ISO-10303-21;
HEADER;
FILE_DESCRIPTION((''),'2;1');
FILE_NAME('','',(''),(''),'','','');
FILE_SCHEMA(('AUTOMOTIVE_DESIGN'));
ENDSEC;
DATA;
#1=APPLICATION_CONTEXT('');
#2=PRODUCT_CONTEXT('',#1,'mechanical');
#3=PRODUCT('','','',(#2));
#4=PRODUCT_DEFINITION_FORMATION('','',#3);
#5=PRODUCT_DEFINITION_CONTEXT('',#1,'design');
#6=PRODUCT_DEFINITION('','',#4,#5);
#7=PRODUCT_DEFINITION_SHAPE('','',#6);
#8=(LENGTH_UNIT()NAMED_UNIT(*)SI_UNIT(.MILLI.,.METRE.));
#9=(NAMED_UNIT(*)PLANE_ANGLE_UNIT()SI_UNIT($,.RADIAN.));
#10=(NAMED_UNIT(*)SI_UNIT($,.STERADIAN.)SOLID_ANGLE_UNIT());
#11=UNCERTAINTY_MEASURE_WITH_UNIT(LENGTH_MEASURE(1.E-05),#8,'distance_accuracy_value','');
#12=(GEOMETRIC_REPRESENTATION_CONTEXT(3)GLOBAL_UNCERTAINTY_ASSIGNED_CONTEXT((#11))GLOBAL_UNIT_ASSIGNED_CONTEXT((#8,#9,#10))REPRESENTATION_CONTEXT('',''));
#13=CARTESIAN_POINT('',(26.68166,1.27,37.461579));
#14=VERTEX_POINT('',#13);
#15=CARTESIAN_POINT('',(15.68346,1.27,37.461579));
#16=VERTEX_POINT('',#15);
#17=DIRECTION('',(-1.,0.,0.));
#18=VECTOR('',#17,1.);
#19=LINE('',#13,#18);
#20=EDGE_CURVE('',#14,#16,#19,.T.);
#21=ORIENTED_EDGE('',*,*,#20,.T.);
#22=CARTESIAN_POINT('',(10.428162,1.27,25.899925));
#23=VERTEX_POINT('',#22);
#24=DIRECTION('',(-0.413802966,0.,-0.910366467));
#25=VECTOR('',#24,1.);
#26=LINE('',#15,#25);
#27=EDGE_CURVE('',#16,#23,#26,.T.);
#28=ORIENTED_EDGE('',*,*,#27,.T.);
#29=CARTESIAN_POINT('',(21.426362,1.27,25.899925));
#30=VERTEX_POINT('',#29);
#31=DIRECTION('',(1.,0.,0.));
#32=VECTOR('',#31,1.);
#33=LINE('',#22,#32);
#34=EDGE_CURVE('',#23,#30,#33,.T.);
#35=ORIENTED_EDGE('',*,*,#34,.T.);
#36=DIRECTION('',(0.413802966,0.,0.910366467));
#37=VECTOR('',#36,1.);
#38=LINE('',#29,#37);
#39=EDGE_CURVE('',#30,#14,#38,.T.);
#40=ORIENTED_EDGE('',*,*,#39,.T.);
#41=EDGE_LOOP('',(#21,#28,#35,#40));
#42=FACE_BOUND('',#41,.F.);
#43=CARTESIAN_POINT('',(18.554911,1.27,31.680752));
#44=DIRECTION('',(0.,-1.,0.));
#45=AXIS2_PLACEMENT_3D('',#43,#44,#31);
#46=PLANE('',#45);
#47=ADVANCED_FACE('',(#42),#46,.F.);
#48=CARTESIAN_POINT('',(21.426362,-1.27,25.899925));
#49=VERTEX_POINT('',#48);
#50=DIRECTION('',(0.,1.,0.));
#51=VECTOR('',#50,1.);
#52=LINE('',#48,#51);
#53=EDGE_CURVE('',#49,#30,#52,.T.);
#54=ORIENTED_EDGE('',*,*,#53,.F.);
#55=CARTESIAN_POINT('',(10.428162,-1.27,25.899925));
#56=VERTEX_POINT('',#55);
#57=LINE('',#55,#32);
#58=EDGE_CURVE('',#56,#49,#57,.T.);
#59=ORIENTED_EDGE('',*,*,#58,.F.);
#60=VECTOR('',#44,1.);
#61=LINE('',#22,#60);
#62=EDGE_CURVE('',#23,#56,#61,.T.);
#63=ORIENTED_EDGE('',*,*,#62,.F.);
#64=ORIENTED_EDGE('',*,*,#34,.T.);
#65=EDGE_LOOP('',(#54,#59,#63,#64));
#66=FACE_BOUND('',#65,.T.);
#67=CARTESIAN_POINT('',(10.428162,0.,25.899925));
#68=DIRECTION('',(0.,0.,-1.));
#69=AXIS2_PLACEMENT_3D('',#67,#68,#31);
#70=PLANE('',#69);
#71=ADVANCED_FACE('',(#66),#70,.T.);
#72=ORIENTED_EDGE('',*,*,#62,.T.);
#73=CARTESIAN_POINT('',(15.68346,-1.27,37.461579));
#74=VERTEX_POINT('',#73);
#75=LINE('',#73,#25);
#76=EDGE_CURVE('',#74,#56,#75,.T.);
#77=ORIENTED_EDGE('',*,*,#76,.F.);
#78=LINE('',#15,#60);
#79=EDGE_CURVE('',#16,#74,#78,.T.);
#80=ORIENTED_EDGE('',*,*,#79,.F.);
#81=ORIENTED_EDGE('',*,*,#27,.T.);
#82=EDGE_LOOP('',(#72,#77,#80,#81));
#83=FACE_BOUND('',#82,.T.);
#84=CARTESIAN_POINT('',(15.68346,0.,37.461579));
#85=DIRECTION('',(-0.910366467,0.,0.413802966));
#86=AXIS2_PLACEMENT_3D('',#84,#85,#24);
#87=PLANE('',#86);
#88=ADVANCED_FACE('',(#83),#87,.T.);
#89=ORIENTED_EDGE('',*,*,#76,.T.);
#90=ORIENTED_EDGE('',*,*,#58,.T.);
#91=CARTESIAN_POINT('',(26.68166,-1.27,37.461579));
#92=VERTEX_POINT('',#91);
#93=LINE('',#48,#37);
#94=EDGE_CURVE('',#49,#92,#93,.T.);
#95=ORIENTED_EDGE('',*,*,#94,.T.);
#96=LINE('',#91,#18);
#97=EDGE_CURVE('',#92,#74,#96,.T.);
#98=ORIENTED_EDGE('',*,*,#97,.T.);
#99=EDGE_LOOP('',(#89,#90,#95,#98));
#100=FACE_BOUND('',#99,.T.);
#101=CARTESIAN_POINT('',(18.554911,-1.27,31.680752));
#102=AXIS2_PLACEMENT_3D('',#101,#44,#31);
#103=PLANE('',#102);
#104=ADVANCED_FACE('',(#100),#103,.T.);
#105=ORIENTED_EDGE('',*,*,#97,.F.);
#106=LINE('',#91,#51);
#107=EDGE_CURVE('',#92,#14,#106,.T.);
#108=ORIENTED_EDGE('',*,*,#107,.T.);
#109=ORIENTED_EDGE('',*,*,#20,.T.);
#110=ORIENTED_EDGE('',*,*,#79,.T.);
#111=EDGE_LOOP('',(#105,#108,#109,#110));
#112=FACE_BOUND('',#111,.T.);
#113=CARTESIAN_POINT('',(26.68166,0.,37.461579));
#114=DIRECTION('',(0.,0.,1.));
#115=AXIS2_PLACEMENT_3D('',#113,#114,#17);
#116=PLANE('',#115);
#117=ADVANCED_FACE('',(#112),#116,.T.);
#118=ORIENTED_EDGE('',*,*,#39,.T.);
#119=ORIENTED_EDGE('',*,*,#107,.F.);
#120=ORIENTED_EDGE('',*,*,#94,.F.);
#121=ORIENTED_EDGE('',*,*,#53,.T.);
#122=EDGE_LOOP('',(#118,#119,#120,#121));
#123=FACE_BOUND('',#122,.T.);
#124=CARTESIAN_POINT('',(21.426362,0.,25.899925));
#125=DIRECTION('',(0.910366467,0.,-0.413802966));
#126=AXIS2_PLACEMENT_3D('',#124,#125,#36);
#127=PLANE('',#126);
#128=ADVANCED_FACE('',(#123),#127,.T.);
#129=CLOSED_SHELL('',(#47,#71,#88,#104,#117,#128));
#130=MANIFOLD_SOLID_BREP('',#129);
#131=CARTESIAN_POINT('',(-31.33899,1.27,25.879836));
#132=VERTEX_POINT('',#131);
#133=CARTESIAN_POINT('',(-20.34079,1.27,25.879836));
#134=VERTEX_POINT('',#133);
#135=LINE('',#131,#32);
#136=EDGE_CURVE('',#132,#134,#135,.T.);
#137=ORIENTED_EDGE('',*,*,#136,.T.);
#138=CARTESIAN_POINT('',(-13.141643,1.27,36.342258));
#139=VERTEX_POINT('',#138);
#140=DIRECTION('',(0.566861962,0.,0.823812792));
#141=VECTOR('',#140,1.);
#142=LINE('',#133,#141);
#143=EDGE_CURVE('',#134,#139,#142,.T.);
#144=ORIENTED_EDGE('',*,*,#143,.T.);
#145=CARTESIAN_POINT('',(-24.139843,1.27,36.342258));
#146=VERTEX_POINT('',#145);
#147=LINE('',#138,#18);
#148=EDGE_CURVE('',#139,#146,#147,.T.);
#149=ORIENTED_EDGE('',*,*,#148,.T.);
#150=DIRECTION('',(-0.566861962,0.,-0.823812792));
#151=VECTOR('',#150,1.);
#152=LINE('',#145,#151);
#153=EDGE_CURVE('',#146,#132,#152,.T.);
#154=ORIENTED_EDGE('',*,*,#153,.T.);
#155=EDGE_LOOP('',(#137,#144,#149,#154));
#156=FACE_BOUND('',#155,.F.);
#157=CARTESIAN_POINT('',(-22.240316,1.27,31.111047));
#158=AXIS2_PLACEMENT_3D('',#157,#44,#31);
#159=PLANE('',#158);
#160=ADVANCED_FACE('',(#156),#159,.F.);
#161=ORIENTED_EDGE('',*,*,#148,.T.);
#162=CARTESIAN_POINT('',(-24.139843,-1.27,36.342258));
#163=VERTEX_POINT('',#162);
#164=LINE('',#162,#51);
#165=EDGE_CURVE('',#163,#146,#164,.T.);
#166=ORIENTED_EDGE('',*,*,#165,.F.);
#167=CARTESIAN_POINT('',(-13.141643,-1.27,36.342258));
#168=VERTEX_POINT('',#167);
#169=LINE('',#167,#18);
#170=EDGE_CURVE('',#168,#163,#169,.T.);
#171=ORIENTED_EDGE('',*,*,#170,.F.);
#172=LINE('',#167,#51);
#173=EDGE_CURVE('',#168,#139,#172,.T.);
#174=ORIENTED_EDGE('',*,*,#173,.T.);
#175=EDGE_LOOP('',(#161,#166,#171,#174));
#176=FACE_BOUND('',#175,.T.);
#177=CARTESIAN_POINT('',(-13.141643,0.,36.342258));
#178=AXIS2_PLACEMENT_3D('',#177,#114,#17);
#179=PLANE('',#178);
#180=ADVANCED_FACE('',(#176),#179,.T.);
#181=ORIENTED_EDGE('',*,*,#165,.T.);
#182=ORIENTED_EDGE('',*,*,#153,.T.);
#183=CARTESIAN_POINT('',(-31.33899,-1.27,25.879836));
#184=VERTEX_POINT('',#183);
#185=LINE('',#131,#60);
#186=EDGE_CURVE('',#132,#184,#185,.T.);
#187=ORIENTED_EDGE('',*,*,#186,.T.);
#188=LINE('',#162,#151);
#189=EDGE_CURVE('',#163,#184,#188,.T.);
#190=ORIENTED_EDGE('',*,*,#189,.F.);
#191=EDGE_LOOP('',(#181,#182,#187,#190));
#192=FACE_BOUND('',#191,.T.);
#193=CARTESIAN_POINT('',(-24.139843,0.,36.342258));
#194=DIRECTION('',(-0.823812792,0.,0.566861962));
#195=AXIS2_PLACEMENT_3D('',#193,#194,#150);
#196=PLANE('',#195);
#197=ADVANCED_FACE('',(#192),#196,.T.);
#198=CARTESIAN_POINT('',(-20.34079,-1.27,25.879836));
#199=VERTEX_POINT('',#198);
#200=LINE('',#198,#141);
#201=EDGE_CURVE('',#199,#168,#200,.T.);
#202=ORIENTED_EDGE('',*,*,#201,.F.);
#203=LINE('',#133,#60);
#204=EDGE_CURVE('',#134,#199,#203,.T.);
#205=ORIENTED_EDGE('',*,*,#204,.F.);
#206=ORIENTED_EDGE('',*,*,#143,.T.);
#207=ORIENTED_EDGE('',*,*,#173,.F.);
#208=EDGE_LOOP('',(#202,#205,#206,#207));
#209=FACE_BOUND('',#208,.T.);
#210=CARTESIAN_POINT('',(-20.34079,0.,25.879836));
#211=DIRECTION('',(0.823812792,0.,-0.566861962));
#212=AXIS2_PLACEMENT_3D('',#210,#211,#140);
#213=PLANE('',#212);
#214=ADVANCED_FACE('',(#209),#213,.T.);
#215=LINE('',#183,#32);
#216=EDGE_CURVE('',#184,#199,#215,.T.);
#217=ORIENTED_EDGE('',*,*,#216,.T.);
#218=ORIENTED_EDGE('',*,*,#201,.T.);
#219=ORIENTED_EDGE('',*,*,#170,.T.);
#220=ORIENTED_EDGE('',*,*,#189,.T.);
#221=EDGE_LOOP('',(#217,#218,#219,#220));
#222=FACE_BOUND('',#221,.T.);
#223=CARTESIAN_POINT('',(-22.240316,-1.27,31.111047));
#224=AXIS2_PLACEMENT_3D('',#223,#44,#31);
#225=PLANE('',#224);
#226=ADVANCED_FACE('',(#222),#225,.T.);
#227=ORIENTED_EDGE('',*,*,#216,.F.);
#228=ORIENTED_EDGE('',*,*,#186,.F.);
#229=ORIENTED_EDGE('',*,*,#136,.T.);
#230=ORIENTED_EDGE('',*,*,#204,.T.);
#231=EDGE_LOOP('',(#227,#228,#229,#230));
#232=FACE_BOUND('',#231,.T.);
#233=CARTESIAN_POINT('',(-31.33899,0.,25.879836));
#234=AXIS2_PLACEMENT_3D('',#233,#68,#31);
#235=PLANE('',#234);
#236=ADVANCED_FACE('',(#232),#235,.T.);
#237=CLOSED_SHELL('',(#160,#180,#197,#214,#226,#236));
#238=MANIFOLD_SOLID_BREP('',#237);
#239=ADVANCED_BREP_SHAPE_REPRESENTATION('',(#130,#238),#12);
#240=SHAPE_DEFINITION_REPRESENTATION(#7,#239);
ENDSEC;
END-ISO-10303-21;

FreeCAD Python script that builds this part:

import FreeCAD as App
import Part
import Sketcher
Q = App.Units.Quantity


def add_polygon(sketch, points):
    """Adds a closed chain of lines whose ends are joined by coincident constraints."""
    first, n = sketch.GeometryCount, len(points)
    for a, b in zip(points, points[1:] + points[:1]):
        sketch.addGeometry(Part.LineSegment(App.Vector(*a, 0), App.Vector(*b, 0)), False)
    for i in range(n):
        sketch.addConstraint(Sketcher.Constraint("Coincident", first + i, 2, first + (i + 1) % n, 1))

doc = App.newDocument("Part")
body = doc.addObject("PartDesign::Body", "Body")

# Sketch on XZ plane
sketch1 = body.newObject("Sketcher::SketchObject", "Sketch")
sketch1.AttachmentSupport = (doc.getObject("XZ_Plane"), [""])
sketch1.MapMode = "FlatFace"
add_polygon(sketch1, [(-24, 36), (-31, 26), (-20, 26), (-13, 36)])  # lines 0-3
sketch1.addConstraint([
    Sketcher.Constraint("Horizontal", 1),
    Sketcher.Constraint("Horizontal", 3),
    Sketcher.Constraint("Parallel", 0, 2),
    Sketcher.Constraint("Distance", 0, Q("0.5 in")),
    Sketcher.Constraint("DistanceX", 1, 1, 1, 2, Q("0.433 in")),
    Sketcher.Constraint("DistanceX", 0, 2, -1, 1, 31.33899),
    Sketcher.Constraint("DistanceY", -1, 1, 2, 2, 36.342258),
    Sketcher.Constraint("DistanceY", -1, 1, 0, 2, 25.879836),
])
pad1 = body.newObject("PartDesign::Pad", "Pad")
pad1.Profile = sketch1
pad1.Length = Q("0.1 in")
pad1.Midplane = True
body2 = doc.addObject("PartDesign::Body", "Body001")

# Sketch on XZ plane
sketch2 = body2.newObject("Sketcher::SketchObject", "Sketch001")
sketch2.AttachmentSupport = (doc.getObject("XZ_Plane001"), [""])
sketch2.MapMode = "FlatFace"
add_polygon(sketch2, [(27, 37), (16, 37), (10, 26), (21, 26)])  # lines 0-3
sketch2.addConstraint([
    Sketcher.Constraint("Horizontal", 0),
    Sketcher.Constraint("Horizontal", 2),
    Sketcher.Constraint("Parallel", 1, 3),
    Sketcher.Constraint("Distance", 1, Q("0.5 in")),
    Sketcher.Constraint("DistanceX", 0, 2, 0, 1, Q("0.433 in")),
    Sketcher.Constraint("DistanceX", -1, 1, 0, 2, 15.68346),
    Sketcher.Constraint("DistanceY", -1, 1, 0, 2, 37.461579),
    Sketcher.Constraint("DistanceX", -1, 1, 1, 2, 10.428162),
])
pad2 = body2.newObject("PartDesign::Pad", "Pad001")
pad2.Profile = sketch2
pad2.Length = Q("0.1 in")
pad2.Midplane = True

doc.recompute()
